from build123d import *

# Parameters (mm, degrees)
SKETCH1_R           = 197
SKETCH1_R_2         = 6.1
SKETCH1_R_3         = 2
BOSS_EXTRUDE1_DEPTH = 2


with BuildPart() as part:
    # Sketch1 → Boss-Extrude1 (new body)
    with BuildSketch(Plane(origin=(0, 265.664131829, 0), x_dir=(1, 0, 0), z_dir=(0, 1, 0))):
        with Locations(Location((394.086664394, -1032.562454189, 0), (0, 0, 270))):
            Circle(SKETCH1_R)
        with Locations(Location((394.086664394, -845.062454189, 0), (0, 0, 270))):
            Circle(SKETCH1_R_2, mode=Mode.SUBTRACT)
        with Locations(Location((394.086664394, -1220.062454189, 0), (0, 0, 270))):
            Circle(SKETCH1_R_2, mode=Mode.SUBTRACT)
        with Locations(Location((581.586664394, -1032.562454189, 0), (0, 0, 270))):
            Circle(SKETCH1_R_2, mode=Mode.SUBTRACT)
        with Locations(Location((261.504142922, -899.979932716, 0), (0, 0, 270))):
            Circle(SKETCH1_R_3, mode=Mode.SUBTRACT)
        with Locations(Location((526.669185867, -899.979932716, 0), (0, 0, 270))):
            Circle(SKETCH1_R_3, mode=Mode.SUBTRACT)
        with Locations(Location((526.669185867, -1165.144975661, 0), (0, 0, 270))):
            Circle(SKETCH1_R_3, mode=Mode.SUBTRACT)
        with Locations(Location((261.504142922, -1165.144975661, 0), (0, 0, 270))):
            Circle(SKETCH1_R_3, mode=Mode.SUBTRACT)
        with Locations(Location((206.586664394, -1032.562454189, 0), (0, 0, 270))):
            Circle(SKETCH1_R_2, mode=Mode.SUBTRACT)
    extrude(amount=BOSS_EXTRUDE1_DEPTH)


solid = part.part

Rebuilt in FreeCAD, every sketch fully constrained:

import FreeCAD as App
import Part
import Sketcher
Q = App.Units.Quantity

doc = App.newDocument("Part")
body = doc.addObject("PartDesign::Body", "Body")

# Sketch on XZ plane
sketch1 = body.newObject("Sketcher::SketchObject", "Sketch")
sketch1.AttachmentSupport = (doc.getObject("XZ_Plane"), [""])
sketch1.MapMode = "FlatFace"
sketch1.AttachmentOffset = App.Placement(App.Vector(0, 0, -265.664132), App.Rotation())
sketch1.addGeometry([
    Part.Circle(App.Vector(394.086664, 1032.562454, 0), App.Vector(0, 0, 1), 197),  # 0
    Part.Circle(App.Vector(261.504143, 899.979933, 0), App.Vector(0, 0, 1), 2),  # 1
    Part.Circle(App.Vector(206.586664, 1032.562454, 0), App.Vector(0, 0, 1), 6.1),  # 2
    Part.Circle(App.Vector(261.504143, 1165.144976, 0), App.Vector(0, 0, 1), 2),  # 3
    Part.Circle(App.Vector(394.086664, 845.062454, 0), App.Vector(0, 0, 1), 6.1),  # 4
    Part.Circle(App.Vector(526.669186, 899.979933, 0), App.Vector(0, 0, 1), 2),  # 5
    Part.Circle(App.Vector(581.586664, 1032.562454, 0), App.Vector(0, 0, 1), 6.1),  # 6
    Part.Circle(App.Vector(394.086664, 1220.062454, 0), App.Vector(0, 0, 1), 6.1),  # 7
    Part.Circle(App.Vector(526.669186, 1165.144976, 0), App.Vector(0, 0, 1), 2),  # 8
], False)
sketch1.addConstraint([
    Sketcher.Constraint("Equal", 1, 3),
    Sketcher.Constraint("Equal", 2, 4),
    Sketcher.Constraint("Equal", 3, 5),
    Sketcher.Constraint("Equal", 4, 6),
    Sketcher.Constraint("Equal", 6, 7),
    Sketcher.Constraint("Equal", 5, 8),
    Sketcher.Constraint("Horizontal", 0, 3, 2, 3),
    Sketcher.Constraint("Horizontal", 1, 3, 5, 3),
    Sketcher.Constraint("Horizontal", 2, 3, 6, 3),
    Sketcher.Constraint("Horizontal", 3, 3, 8, 3),
    Sketcher.Constraint("Vertical", 1, 3, 3, 3),
    Sketcher.Constraint("Vertical", 0, 3, 4, 3),
    Sketcher.Constraint("Vertical", 4, 3, 7, 3),
    Sketcher.Constraint("Vertical", 5, 3, 8, 3),
    Sketcher.Constraint("Diameter", 0, Q("394 mm")),
    Sketcher.Constraint("Diameter", 1, Q("4 mm")),
    Sketcher.Constraint("Diameter", 2, Q("12.2 mm")),
    Sketcher.Constraint("DistanceX", 2, 3, 0, 3, Q("187.5 mm")),
    Sketcher.Constraint("DistanceY", 4, 3, 0, 3, Q("187.5 mm")),
    Sketcher.Constraint("DistanceX", 0, 3, 6, 3, Q("187.5 mm")),
    Sketcher.Constraint("DistanceY", 0, 3, 7, 3, Q("187.5 mm")),
    Sketcher.Constraint("DistanceX", 1, 3, 0, 3, Q("132.582521 mm")),
    Sketcher.Constraint("DistanceY", 1, 3, 0, 3, Q("132.582521 mm")),
    Sketcher.Constraint("DistanceY", 2, 3, 3, 3, Q("132.582521 mm")),
    Sketcher.Constraint("DistanceX", 4, 3, 5, 3, Q("132.582521 mm")),
    Sketcher.Constraint("DistanceX", -1, 1, 0, 3, Q("394.086664 mm")),
    Sketcher.Constraint("DistanceY", -1, 1, 0, 3, Q("1032.562454 mm")),
])
pad1 = body.newObject("PartDesign::Pad", "Pad")
pad1.Profile = sketch1
pad1.Length = 2
pad1.Reversed = True

doc.recompute()
